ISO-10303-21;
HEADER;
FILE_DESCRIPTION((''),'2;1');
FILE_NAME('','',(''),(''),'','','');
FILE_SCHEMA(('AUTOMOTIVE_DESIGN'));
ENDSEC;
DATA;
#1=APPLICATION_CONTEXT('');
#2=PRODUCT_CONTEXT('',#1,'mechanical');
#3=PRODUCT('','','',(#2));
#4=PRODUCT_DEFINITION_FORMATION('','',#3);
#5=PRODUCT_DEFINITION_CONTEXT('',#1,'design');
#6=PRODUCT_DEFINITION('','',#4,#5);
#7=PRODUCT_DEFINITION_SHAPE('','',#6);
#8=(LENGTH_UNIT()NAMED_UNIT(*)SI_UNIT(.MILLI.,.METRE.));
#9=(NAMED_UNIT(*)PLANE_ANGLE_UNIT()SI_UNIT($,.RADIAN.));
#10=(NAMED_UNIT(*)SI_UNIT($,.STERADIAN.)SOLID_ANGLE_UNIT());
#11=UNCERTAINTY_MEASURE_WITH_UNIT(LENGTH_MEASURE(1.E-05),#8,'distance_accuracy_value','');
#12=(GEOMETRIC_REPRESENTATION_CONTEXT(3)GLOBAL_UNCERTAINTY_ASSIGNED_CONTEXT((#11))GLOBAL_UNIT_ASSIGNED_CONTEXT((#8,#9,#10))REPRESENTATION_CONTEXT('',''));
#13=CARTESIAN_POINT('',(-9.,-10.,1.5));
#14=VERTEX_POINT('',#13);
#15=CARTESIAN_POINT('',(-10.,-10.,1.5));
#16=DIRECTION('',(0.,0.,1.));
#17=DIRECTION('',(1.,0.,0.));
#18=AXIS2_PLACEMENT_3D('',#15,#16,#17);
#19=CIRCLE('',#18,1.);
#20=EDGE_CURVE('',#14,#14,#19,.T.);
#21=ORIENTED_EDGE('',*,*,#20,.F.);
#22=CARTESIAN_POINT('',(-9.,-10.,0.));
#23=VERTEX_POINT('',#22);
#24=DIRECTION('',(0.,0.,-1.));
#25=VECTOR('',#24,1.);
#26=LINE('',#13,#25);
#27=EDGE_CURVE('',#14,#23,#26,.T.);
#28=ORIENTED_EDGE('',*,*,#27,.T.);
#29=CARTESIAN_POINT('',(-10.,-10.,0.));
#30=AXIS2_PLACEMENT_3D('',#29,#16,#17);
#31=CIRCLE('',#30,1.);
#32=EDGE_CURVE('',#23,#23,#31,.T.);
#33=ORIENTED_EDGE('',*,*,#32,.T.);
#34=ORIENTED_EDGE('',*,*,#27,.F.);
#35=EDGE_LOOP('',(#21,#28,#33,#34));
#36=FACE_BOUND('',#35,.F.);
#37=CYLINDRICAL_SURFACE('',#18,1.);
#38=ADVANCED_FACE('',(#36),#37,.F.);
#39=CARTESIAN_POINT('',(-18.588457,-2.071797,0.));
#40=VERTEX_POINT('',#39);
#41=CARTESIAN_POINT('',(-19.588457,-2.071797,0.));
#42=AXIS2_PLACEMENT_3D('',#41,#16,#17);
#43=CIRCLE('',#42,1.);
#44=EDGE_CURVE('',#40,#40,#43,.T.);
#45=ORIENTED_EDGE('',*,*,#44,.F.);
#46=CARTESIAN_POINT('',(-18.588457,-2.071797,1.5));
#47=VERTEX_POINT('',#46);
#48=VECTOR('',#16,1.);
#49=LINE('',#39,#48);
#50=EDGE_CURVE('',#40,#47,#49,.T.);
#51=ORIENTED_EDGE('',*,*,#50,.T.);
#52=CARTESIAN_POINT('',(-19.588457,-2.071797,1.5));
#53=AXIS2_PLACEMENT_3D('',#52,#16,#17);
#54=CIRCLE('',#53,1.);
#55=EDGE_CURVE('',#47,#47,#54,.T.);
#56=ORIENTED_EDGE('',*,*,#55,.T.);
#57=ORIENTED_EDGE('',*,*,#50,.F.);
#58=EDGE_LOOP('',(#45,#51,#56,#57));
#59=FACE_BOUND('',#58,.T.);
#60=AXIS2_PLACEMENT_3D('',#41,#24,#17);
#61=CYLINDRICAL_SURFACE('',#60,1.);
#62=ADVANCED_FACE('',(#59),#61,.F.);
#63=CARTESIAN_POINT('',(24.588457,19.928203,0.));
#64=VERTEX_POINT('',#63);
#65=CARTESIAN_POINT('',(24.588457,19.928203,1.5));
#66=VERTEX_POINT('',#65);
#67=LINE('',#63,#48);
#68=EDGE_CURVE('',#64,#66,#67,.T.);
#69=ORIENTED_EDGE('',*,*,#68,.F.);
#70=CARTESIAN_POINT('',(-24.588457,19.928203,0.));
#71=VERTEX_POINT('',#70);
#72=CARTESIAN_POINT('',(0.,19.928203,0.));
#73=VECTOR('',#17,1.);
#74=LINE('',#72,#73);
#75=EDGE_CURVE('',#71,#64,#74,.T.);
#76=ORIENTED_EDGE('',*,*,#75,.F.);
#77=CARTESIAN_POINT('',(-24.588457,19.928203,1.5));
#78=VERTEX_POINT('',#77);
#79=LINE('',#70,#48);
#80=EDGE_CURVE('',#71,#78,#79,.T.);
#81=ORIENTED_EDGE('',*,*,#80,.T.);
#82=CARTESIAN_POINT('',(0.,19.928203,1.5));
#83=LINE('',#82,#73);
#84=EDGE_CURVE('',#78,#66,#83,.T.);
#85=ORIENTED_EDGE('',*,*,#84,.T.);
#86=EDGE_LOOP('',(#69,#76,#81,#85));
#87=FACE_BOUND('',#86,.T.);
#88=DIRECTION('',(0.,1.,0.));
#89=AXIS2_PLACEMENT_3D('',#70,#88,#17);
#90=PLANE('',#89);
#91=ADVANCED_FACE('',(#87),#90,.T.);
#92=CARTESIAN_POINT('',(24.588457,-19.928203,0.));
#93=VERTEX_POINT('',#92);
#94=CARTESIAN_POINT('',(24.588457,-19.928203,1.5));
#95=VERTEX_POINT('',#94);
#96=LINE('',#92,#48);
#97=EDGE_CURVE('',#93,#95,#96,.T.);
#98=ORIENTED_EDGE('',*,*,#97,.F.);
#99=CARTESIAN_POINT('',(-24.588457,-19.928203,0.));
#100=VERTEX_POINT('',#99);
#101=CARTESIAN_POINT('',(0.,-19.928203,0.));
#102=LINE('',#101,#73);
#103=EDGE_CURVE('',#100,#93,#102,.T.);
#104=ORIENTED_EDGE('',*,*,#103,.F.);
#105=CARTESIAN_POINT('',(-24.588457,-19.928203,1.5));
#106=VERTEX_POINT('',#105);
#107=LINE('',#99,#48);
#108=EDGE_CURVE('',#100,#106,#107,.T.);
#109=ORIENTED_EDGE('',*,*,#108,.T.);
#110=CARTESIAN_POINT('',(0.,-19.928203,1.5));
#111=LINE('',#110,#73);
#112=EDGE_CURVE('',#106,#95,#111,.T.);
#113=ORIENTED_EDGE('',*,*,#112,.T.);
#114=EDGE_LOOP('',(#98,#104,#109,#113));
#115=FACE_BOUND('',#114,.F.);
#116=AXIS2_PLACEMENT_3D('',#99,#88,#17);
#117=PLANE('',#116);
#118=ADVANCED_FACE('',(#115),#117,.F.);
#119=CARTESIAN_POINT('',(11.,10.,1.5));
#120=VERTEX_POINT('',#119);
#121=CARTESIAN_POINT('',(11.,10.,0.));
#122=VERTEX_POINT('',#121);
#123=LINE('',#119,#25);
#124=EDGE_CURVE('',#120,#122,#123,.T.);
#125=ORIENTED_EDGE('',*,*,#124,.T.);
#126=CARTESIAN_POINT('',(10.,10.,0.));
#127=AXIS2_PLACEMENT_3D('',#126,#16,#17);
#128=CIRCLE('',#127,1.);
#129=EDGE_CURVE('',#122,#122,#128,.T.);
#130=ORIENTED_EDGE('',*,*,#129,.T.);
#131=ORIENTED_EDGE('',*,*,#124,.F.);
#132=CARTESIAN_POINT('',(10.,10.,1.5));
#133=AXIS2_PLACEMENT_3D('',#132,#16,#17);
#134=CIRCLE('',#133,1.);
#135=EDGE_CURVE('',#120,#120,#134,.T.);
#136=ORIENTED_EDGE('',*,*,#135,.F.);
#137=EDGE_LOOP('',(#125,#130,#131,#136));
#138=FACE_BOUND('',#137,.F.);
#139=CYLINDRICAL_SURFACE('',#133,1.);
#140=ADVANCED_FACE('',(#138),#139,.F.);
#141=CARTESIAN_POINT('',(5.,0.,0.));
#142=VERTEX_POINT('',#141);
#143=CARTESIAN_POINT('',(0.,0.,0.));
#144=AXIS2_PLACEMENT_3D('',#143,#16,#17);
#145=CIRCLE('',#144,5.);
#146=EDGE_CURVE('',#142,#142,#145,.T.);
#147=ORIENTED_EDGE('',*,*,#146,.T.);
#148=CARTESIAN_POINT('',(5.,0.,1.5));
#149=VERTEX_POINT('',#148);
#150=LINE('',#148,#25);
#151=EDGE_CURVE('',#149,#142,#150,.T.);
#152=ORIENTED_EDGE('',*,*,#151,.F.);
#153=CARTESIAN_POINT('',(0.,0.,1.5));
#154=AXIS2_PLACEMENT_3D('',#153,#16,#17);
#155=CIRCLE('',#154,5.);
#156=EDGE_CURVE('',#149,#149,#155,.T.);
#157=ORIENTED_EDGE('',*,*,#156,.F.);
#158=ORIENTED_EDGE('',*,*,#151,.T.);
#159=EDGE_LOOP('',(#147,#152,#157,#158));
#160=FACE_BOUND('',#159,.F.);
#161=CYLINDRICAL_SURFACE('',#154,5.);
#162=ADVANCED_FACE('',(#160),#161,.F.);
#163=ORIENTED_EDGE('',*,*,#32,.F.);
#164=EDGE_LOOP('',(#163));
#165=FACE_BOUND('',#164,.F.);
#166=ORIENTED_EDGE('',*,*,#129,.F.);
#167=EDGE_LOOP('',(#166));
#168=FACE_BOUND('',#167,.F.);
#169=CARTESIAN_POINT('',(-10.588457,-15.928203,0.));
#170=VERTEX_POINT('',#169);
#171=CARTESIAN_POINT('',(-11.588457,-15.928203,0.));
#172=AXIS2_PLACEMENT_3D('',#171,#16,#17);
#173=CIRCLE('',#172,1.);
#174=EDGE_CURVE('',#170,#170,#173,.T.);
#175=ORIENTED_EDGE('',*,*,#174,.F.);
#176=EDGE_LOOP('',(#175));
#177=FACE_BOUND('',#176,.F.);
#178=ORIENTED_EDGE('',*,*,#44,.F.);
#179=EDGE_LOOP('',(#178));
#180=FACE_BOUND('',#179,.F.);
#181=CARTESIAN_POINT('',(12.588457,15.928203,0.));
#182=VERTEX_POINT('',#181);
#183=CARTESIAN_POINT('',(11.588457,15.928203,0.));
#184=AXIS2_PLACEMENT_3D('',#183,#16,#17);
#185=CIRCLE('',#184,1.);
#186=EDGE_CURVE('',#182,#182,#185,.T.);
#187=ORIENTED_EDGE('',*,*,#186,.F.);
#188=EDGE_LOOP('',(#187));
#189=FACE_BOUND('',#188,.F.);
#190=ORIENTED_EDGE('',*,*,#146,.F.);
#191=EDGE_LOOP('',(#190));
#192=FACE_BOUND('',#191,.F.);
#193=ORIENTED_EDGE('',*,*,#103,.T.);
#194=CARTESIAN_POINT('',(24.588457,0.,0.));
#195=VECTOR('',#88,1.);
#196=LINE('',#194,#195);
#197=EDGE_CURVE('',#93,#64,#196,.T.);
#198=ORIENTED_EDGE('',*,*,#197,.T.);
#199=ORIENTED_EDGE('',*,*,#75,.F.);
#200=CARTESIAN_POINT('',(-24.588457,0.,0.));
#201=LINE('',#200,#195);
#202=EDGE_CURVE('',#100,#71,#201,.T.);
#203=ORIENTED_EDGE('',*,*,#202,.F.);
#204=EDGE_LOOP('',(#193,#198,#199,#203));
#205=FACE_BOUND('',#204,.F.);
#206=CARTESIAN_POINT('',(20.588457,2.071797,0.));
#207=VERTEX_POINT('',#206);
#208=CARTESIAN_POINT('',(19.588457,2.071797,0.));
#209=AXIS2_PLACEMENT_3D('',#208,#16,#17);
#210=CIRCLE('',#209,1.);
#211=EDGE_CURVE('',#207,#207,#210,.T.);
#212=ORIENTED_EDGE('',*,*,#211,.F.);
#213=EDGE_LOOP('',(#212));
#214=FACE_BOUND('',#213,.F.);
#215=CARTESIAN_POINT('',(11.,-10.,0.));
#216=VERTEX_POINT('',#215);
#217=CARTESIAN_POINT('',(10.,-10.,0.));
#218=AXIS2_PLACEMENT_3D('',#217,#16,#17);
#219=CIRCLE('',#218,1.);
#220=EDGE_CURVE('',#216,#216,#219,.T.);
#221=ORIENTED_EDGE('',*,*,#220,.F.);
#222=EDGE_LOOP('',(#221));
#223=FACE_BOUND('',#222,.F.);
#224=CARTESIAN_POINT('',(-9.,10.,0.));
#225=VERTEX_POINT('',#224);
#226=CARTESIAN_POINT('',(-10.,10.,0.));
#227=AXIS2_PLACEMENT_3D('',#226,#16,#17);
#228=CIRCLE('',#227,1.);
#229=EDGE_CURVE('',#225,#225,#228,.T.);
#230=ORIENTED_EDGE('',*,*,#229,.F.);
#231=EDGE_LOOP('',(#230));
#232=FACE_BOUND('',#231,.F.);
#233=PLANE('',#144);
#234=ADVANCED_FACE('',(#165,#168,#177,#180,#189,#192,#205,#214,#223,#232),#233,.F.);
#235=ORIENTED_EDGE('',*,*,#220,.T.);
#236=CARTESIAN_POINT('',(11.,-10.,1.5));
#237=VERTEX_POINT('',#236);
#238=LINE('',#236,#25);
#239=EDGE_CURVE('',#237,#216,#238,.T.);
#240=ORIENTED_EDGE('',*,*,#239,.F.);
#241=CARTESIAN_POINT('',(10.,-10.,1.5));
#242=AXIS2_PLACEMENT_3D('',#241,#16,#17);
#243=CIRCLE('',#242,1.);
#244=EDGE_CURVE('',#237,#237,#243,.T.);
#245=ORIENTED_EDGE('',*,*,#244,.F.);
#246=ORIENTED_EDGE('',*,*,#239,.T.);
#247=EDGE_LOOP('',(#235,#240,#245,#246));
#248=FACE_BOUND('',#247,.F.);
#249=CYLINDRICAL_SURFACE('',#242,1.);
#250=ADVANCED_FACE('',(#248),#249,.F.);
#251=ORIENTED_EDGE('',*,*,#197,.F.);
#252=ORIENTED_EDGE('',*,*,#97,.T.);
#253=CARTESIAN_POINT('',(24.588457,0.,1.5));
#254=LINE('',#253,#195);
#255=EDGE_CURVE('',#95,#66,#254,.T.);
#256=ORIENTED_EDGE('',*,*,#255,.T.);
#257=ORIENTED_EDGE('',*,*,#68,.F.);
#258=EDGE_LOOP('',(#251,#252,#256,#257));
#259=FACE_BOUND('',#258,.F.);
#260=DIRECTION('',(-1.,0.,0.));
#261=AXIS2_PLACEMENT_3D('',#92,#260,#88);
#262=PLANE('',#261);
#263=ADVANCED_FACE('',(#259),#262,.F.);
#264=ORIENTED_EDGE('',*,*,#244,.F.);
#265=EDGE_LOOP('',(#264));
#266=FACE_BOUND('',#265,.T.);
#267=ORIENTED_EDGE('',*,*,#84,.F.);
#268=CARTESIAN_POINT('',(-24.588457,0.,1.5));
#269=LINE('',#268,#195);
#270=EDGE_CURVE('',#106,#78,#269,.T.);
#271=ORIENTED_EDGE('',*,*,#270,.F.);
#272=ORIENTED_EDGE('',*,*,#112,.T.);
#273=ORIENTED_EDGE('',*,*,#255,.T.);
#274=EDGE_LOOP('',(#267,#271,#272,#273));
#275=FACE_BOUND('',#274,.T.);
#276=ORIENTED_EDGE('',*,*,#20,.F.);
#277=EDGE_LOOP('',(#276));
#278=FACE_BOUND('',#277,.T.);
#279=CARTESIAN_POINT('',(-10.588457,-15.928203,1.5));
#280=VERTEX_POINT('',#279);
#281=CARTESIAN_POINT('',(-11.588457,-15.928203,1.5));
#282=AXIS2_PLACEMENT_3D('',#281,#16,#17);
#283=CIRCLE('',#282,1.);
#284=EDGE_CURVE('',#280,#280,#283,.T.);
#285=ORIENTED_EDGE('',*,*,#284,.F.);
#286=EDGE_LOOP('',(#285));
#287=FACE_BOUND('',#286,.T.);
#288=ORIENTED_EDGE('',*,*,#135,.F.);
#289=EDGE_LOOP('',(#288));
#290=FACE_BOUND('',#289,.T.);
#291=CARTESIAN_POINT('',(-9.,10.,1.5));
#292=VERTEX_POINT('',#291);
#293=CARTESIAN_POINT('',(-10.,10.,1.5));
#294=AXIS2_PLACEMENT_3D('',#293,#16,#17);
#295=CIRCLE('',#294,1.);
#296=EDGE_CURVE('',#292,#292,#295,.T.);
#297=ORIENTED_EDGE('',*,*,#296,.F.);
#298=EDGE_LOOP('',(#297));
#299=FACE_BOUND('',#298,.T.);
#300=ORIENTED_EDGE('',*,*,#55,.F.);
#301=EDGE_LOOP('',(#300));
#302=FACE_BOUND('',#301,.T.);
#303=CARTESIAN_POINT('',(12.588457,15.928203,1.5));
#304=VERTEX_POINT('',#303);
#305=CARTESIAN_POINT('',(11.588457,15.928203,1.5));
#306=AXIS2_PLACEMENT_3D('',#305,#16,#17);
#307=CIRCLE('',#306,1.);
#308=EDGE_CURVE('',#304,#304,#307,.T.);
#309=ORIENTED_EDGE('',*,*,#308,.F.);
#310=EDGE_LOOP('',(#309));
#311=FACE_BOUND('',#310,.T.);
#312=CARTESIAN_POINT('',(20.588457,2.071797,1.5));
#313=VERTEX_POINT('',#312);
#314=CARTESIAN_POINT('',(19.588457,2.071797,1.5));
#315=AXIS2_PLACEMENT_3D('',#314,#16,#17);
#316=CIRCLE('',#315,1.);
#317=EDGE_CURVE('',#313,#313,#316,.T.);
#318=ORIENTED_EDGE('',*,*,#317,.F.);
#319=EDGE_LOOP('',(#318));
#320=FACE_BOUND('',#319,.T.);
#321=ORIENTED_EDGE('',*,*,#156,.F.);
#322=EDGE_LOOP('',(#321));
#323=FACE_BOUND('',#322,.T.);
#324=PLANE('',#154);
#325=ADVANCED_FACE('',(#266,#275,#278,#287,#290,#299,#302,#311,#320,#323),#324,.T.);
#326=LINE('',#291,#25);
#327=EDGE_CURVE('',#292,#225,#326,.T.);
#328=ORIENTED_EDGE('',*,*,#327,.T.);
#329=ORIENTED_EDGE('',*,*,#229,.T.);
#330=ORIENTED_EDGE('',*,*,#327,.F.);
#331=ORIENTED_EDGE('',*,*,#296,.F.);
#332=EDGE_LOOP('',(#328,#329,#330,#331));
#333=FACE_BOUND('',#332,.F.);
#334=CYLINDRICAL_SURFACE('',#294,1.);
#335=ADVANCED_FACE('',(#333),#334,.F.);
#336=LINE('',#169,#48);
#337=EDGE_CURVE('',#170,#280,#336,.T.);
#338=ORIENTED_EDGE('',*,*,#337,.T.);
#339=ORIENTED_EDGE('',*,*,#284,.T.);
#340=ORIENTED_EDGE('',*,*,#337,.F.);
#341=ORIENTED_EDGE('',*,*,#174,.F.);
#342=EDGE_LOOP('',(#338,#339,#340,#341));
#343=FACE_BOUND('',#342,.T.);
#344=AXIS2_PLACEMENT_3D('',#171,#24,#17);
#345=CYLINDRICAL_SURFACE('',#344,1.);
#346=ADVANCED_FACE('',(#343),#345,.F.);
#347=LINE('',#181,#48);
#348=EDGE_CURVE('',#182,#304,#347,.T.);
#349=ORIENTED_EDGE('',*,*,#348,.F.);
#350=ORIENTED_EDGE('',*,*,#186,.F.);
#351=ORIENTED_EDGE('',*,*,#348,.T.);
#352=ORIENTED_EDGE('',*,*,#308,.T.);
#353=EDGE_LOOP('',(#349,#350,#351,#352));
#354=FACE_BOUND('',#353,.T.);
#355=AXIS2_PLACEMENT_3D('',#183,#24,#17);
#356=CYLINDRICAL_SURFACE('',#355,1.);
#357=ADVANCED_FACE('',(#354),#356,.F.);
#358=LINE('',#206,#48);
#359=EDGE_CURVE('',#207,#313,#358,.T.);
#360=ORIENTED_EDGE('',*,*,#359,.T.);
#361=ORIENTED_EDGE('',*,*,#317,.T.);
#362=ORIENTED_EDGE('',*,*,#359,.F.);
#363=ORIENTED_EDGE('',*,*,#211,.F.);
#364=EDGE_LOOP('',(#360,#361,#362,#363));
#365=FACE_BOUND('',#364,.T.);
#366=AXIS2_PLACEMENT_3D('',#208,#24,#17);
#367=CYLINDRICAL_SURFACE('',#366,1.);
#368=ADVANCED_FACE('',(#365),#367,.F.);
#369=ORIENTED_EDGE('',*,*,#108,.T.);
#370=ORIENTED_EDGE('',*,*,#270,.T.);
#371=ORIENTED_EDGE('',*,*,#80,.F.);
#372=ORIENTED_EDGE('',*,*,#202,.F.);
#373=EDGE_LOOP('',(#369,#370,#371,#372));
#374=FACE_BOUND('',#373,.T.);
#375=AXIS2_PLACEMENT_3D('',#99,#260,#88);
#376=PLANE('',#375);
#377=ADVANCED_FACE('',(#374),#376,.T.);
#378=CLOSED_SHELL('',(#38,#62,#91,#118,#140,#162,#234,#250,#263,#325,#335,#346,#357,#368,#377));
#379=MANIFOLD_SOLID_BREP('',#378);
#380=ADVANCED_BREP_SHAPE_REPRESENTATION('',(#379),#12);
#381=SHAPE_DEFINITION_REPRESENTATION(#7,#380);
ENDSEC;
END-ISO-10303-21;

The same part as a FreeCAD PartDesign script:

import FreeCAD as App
import Part
import Sketcher

V = App.Vector
Q = App.Units.Quantity


def add_polygon(sketch, points):
    """Adds a closed chain of lines whose ends are joined by coincident constraints."""
    first, n = sketch.GeometryCount, len(points)
    for a, b in zip(points, points[1:] + points[:1]):
        sketch.addGeometry(Part.LineSegment(App.Vector(*a, 0), App.Vector(*b, 0)), False)
    for i in range(n):
        sketch.addConstraint(Sketcher.Constraint("Coincident", first + i, 2, first + (i + 1) % n, 1))

doc = App.newDocument("Part")
params = doc.addObject("Spreadsheet::Sheet", "Params")
for row, (alias, value) in enumerate([
    ("sketch1_diameter", "2 mm"),
    ("pad1_length", "1.5 mm"),
    ("sketch2_diameter", "2 mm"),
    ("sketch2_diameter2", "10 mm"),
], start=1):
    params.set(f"A{row}", alias)
    params.set(f"B{row}", "=" + value)
    params.setAlias(f"B{row}", alias)

body = doc.addObject("PartDesign::Body", "Body")

# Sketch on XY plane
sketch1 = body.newObject("Sketcher::SketchObject", "Sketch")
sketch1.AttachmentSupport = (doc.getObject("XY_Plane"), [""])
sketch1.MapMode = "FlatFace"
add_polygon(sketch1, [(-24.588457, 19.928203), (-24.588457, -19.928203), (24.588457, -19.928203), (24.588457, 19.928203)])  # lines 0-3
sketch1.addGeometry(Part.Circle(V(-11.588457, -15.928203, 0), V(0, 0, 1), 1), False)  # 4
sketch1.addGeometry(Part.Circle(V(-19.588457, -2.071797, 0), V(0, 0, 1), 1), False)  # 5
sketch1.addGeometry(Part.Circle(V(19.588457, 2.071797, 0), V(0, 0, 1), 1), False)  # 6
sketch1.addGeometry(Part.Circle(V(11.588457, 15.928203, 0), V(0, 0, 1), 1), False)  # 7
sketch1.addConstraint(Sketcher.Constraint("Vertical", 0))
sketch1.addConstraint(Sketcher.Constraint("Horizontal", 1))
sketch1.addConstraint(Sketcher.Constraint("Vertical", 2))
sketch1.addConstraint(Sketcher.Constraint("Horizontal", 3))
sketch1.addConstraint(Sketcher.Constraint("Equal", 4, 5))
sketch1.addConstraint(Sketcher.Constraint("Equal", 5, 6))
sketch1.addConstraint(Sketcher.Constraint("Equal", 6, 7))
sketch1.addConstraint(Sketcher.Constraint("Symmetric", 5, 3, 6, 3, -1, 1))
sketch1.addConstraint(Sketcher.Constraint("Symmetric", 4, 3, 7, 3, -1, 1))
sketch1.addConstraint(Sketcher.Constraint("Symmetric", 0, 2, 2, 2, -1, 1))
sketch1.addConstraint(Sketcher.Constraint("Diameter", 4, Q("2 mm")))
sketch1.addConstraint(Sketcher.Constraint("DistanceX", 5, 3, 4, 3, Q("8 mm")))
sketch1.addConstraint(Sketcher.Constraint("DistanceY", 4, 3, 6, 3, Q("18 mm")))
sketch1.addConstraint(Sketcher.Constraint("DistanceX", 0, 2, 4, 3, Q("13 mm")))
sketch1.addConstraint(Sketcher.Constraint("DistanceY", 0, 2, 4, 3, Q("4 mm")))
sketch1.addConstraint(Sketcher.Constraint("DistanceX", 1, 1, 1, 2, Q("49.176914 mm")))
sketch1.addConstraint(Sketcher.Constraint("DistanceY", 0, 2, 0, 1, Q("39.856406 mm")))
sketch1.setExpression("Constraints[14]", "Params.sketch1_diameter")
pad1 = body.newObject("PartDesign::Pad", "Pad")
pad1.Profile = sketch1
pad1.setExpression("Length", "Params.pad1_length")

# Sketch on XY plane
sketch2 = body.newObject("Sketcher::SketchObject", "Sketch001")
sketch2.AttachmentSupport = (doc.getObject("XY_Plane"), [""])
sketch2.MapMode = "FlatFace"
sketch2.AttachmentOffset = App.Placement(V(0, 0, 1.5), App.Rotation())
sketch2.addGeometry(Part.Circle(V(-10, 10, 0), V(0, 0, 1), 1), False)
sketch2.addGeometry(Part.Circle(V(10, 10, 0), V(0, 0, 1), 1), False)
sketch2.addGeometry(Part.Circle(V(-10, -10, 0), V(0, 0, 1), 1), False)
sketch2.addGeometry(Part.Circle(V(10, -10, 0), V(0, 0, 1), 1), False)
sketch2.addGeometry(Part.Circle(V(0, 0, 0), V(0, 0, 1), 5), False)
sketch2.addConstraint(Sketcher.Constraint("Coincident", 4, 3, -1, 1))
sketch2.addConstraint(Sketcher.Constraint("Equal", 0, 1))
sketch2.addConstraint(Sketcher.Constraint("Equal", 1, 2))
sketch2.addConstraint(Sketcher.Constraint("Equal", 2, 3))
sketch2.addConstraint(Sketcher.Constraint("Symmetric", 1, 3, 2, 3, -1, 1))
sketch2.addConstraint(Sketcher.Constraint("Symmetric", 0, 3, 3, 3, -1, 1))
sketch2.addConstraint(Sketcher.Constraint("Symmetric", 0, 3, 1, 3, -2))
sketch2.addConstraint(Sketcher.Constraint("Diameter", 0, Q("2 mm")))
sketch2.addConstraint(Sketcher.Constraint("Diameter", 4, Q("10 mm")))
sketch2.addConstraint(Sketcher.Constraint("DistanceX", 0, 3, -1, 1, Q("10 mm")))
sketch2.addConstraint(Sketcher.Constraint("DistanceY", -1, 1, 0, 3, Q("10 mm")))
sketch2.setExpression("Constraints[7]", "Params.sketch2_diameter")
sketch2.setExpression("Constraints[8]", "Params.sketch2_diameter2")
pocket1 = body.newObject("PartDesign::Pocket", "Pocket")
pocket1.Profile = sketch2
pocket1.Type = "ThroughAll"

doc.recompute()
